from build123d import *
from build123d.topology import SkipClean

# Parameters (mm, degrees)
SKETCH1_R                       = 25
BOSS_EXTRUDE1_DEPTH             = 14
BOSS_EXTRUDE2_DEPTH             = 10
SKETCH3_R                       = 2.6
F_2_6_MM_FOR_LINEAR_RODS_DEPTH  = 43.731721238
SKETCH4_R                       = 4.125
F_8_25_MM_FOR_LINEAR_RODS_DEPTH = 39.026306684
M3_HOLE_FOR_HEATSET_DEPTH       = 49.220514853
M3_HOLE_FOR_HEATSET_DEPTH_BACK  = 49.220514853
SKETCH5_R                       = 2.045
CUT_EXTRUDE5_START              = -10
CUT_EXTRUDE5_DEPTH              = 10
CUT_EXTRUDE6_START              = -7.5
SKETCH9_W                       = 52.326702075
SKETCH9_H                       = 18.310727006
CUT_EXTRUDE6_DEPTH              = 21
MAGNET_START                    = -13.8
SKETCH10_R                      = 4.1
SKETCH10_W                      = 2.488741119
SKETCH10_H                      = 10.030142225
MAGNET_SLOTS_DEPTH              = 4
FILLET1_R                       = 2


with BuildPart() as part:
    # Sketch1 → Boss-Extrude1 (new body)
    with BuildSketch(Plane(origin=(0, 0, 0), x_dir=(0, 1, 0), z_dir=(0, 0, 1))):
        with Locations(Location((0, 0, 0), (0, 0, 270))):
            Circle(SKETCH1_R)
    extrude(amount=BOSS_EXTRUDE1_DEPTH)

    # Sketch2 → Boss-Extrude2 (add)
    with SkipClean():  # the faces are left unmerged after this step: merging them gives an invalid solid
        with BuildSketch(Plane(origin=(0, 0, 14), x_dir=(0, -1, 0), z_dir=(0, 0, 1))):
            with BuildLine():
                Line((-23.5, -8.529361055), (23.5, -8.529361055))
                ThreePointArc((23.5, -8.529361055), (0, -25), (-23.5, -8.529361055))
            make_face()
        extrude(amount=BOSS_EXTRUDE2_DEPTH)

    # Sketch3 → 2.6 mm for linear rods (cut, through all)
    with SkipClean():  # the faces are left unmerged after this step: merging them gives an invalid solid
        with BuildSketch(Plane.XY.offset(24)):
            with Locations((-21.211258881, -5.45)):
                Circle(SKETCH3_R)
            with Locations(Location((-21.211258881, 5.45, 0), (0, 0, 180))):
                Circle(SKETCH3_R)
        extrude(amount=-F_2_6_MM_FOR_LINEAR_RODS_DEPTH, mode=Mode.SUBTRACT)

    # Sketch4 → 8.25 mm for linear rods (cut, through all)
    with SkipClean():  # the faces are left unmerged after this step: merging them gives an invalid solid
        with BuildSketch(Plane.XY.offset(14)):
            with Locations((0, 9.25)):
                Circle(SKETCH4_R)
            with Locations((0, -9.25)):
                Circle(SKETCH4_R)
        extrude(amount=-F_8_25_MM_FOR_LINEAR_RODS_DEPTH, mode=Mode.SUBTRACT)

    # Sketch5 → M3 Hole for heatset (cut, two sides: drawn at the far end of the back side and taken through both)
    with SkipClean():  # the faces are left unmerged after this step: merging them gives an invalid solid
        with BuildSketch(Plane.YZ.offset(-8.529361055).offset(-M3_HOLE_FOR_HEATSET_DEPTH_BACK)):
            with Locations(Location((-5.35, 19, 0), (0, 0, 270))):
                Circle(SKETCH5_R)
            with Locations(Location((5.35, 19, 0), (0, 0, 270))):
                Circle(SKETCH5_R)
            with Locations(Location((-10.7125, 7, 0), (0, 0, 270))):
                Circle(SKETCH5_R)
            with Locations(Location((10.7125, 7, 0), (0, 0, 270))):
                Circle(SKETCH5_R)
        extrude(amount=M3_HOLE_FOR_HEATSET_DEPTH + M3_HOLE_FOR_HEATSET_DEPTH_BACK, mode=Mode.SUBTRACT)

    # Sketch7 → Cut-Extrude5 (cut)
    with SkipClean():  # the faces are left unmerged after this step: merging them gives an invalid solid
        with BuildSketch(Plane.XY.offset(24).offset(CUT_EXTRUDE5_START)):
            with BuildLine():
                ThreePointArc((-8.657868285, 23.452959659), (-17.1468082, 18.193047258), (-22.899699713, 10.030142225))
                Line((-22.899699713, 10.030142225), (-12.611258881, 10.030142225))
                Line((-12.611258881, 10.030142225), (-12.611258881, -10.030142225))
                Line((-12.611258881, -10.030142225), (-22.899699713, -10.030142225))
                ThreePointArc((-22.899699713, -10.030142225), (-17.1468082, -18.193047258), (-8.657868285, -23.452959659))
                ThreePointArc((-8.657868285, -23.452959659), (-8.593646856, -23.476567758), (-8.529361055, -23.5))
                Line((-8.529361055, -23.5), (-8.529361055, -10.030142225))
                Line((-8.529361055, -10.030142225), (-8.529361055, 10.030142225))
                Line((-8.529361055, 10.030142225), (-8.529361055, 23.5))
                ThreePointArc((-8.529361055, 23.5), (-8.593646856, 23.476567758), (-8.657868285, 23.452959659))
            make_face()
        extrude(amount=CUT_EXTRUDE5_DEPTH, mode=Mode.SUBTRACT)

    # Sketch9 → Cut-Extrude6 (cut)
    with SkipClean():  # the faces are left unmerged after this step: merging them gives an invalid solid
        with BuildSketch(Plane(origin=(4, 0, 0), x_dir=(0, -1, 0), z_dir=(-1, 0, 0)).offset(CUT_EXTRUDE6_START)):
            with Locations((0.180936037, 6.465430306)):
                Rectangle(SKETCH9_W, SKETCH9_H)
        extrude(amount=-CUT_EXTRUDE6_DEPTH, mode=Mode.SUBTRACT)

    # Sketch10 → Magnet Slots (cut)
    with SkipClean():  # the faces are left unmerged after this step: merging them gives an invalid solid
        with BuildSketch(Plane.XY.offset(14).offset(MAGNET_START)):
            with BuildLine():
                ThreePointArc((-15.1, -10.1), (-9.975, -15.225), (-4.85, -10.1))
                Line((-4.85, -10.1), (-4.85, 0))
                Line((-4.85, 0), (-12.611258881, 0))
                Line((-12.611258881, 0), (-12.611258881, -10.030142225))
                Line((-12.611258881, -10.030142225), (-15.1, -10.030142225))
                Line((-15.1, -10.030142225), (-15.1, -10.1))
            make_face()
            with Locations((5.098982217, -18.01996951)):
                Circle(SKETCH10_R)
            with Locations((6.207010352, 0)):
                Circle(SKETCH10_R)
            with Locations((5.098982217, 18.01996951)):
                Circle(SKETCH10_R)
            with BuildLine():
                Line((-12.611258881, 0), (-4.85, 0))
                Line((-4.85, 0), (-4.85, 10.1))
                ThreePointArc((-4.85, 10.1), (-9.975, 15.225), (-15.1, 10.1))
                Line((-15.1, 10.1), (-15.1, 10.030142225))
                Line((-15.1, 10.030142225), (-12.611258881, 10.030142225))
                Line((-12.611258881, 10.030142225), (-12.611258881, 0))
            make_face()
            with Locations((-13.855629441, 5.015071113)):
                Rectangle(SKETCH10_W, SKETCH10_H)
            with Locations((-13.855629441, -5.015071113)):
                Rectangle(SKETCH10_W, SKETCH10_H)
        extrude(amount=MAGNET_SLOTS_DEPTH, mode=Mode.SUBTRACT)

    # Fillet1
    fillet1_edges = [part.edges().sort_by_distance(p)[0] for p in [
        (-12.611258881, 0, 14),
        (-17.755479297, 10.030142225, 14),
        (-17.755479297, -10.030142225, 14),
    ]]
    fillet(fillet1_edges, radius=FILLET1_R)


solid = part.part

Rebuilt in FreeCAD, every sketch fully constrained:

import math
import FreeCAD as App
import Part
import Sketcher
from FreeCAD import Vector
Q = App.Units.Quantity


def edges_at(feature, points):
    """Names of the edges that pass closest to the given points."""
    edges = feature.Shape.Edges
    near = lambda p: min(range(len(edges)), key=lambda i: edges[i].distToShape(Part.Vertex(*p))[0])
    return sorted({f"Edge{near(p) + 1}" for p in points})


def add_polygon(sketch, points):
    """Adds a closed chain of lines whose ends are joined by coincident constraints."""
    first, n = sketch.GeometryCount, len(points)
    for a, b in zip(points, points[1:] + points[:1]):
        sketch.addGeometry(Part.LineSegment(App.Vector(*a, 0), App.Vector(*b, 0)), False)
    for i in range(n):
        sketch.addConstraint(Sketcher.Constraint("Coincident", first + i, 2, first + (i + 1) % n, 1))

doc = App.newDocument("Part")
body = doc.addObject("PartDesign::Body", "Body")

sketch1 = doc.addObject("Sketcher::SketchObject", "Sketch")
body.addObject(sketch1)
sketch1.AttachmentSupport = (doc.XY_Plane, [""])
sketch1.MapMode = "FlatFace"
sketch1.addGeometry(Part.Circle(Vector(0, 0, 0), Vector(0, 0, 1), 25), False)
sketch1.addConstraint(Sketcher.Constraint("Coincident", 0, 3, -1, 1))
sketch1.addConstraint(Sketcher.Constraint("Diameter", 0, Q("50 mm")))
pad1 = doc.addObject("PartDesign::Pad", "Pad")
body.addObject(pad1)
pad1.Profile = sketch1
pad1.Length = 14

sketch2 = doc.addObject("Sketcher::SketchObject", "Sketch001")
body.addObject(sketch2)
sketch2.AttachmentSupport = (doc.XY_Plane, [""])
sketch2.MapMode = "FlatFace"
sketch2.AttachmentOffset = App.Placement(Vector(0, 0, 14), App.Rotation())
sketch2.addGeometry(Part.LineSegment(Vector(-9, -24, 0), Vector(-9, 24, 0)), False)
sketch2.addGeometry(Part.ArcOfCircle(Part.Circle(Vector(0, 0, 0), Vector(0, 0, 1), 25), math.radians(110), math.radians(250)), False)
sketch2.addConstraint(Sketcher.Constraint("Coincident", 0, 1, 1, 2))
sketch2.addConstraint(Sketcher.Constraint("Coincident", 1, 1, 0, 2))
sketch2.addConstraint(Sketcher.Constraint("Vertical", 0))
sketch2.addConstraint(Sketcher.Constraint("Coincident", 1, 3, -1, 1))
sketch2.addConstraint(Sketcher.Constraint("Radius", 1, Q("25 mm")))
sketch2.addConstraint(Sketcher.Constraint("DistanceY", 0, 1, 0, 2, Q("47 mm")))
pad2 = doc.addObject("PartDesign::Pad", "Pad001")
body.addObject(pad2)
pad2.Profile = sketch2
pad2.Length = 10

sketch3 = doc.addObject("Sketcher::SketchObject", "Sketch002")
body.addObject(sketch3)
sketch3.AttachmentSupport = (doc.XY_Plane, [""])
sketch3.MapMode = "FlatFace"
sketch3.AttachmentOffset = App.Placement(Vector(0, 0, 24), App.Rotation())
sketch3.addGeometry(Part.Circle(Vector(-21.2, -5.5, 0), Vector(0, 0, 1), 2.6), False)
sketch3.addGeometry(Part.Circle(Vector(-21.2, 5.5, 0), Vector(0, 0, 1), 2.6), False)
sketch3.addConstraint(Sketcher.Constraint("Equal", 0, 1))
sketch3.addConstraint(Sketcher.Constraint("Symmetric", 0, 3, 1, 3, -1))
sketch3.addConstraint(Sketcher.Constraint("Diameter", 0, Q("5.2 mm")))
sketch3.addConstraint(Sketcher.Constraint("DistanceY", 0, 3, 1, 3, Q("10.9 mm")))
sketch3.addConstraint(Sketcher.Constraint("DistanceX", 0, 3, -1, 1, Q("21.211259 mm")))
pocket1 = doc.addObject("PartDesign::Pocket", "Pocket")
body.addObject(pocket1)
pocket1.Profile = sketch3
pocket1.Type = "ThroughAll"

sketch4 = doc.addObject("Sketcher::SketchObject", "Sketch003")
body.addObject(sketch4)
sketch4.AttachmentSupport = (doc.XY_Plane, [""])
sketch4.MapMode = "FlatFace"
sketch4.AttachmentOffset = App.Placement(Vector(0, 0, 14), App.Rotation())
sketch4.addGeometry(Part.Circle(Vector(0, 9.2, 0), Vector(0, 0, 1), 4.1), False)
sketch4.addGeometry(Part.Circle(Vector(0, -9.2, 0), Vector(0, 0, 1), 4.1), False)
sketch4.addConstraint(Sketcher.Constraint("Equal", 0, 1))
sketch4.addConstraint(Sketcher.Constraint("Symmetric", 0, 3, 1, 3, -1, 1))
sketch4.addConstraint(Sketcher.Constraint("PointOnObject", 0, 3, -2))
sketch4.addConstraint(Sketcher.Constraint("Diameter", 0, Q("8.25 mm")))
sketch4.addConstraint(Sketcher.Constraint("DistanceY", 1, 3, 0, 3, Q("18.5 mm")))
pocket2 = doc.addObject("PartDesign::Pocket", "Pocket001")
body.addObject(pocket2)
pocket2.Profile = sketch4
pocket2.Type = "ThroughAll"

sketch5 = doc.addObject("Sketcher::SketchObject", "Sketch004")
body.addObject(sketch5)
sketch5.AttachmentSupport = (doc.YZ_Plane, [""])
sketch5.MapMode = "FlatFace"
sketch5.AttachmentOffset = App.Placement(Vector(0, 0, -8.529361), App.Rotation())
sketch5.addGeometry(Part.Circle(Vector(-5.3, 19, 0), Vector(0, 0, 1), 2), False)
sketch5.addGeometry(Part.Circle(Vector(5.3, 19, 0), Vector(0, 0, 1), 2), False)
sketch5.addGeometry(Part.Circle(Vector(-10.7, 7, 0), Vector(0, 0, 1), 2), False)
sketch5.addGeometry(Part.Circle(Vector(10.7, 7, 0), Vector(0, 0, 1), 2), False)
sketch5.addConstraint(Sketcher.Constraint("Equal", 0, 1))
sketch5.addConstraint(Sketcher.Constraint("Equal", 1, 2))
sketch5.addConstraint(Sketcher.Constraint("Equal", 2, 3))
sketch5.addConstraint(Sketcher.Constraint("Symmetric", 0, 3, 1, 3, -2))
sketch5.addConstraint(Sketcher.Constraint("Symmetric", 2, 3, 3, 3, -2))
sketch5.addConstraint(Sketcher.Constraint("Diameter", 0, Q("4.09 mm")))
sketch5.addConstraint(Sketcher.Constraint("DistanceY", -1, 1, 0, 3, Q("19 mm")))
sketch5.addConstraint(Sketcher.Constraint("DistanceY", -1, 1, 2, 3, Q("7 mm")))
sketch5.addConstraint(Sketcher.Constraint("DistanceX", 0, 3, 1, 3, Q("10.7 mm")))
sketch5.addConstraint(Sketcher.Constraint("DistanceX", 2, 3, 3, 3, Q("21.425 mm")))
pocket3 = doc.addObject("PartDesign::Pocket", "Pocket002")
body.addObject(pocket3)
pocket3.Profile = sketch5
pocket3.Type = "ThroughAll"
pocket3.Midplane = True

sketch6 = doc.addObject("Sketcher::SketchObject", "Sketch005")
body.addObject(sketch6)
sketch6.AttachmentSupport = (doc.XY_Plane, [""])
sketch6.MapMode = "FlatFace"
sketch6.AttachmentOffset = App.Placement(Vector(0, 0, 14), App.Rotation())
sketch6.addGeometry(Part.ArcOfCircle(Part.Circle(Vector(0, 0, 0), Vector(0, 0, 1), 25), math.radians(110), math.radians(156)), False)
sketch6.addGeometry(Part.LineSegment(Vector(-22.9, 10.03, 0), Vector(-12.61, 10.03, 0)), False)
sketch6.addGeometry(Part.LineSegment(Vector(-12.61, 10.03, 0), Vector(-12.61, -10.03, 0)), False)
sketch6.addGeometry(Part.LineSegment(Vector(-12.61, -10.03, 0), Vector(-22.9, -10.03, 0)), False)
sketch6.addGeometry(Part.ArcOfCircle(Part.Circle(Vector(0, 0, 0), Vector(0, 0, 1), 25), math.radians(-156), math.radians(-110)), False)
sketch6.addGeometry(Part.ArcOfCircle(Part.Circle(Vector(0, 0, 0), Vector(0, 0, 1), 25), math.radians(-110.26), math.radians(-109.95)), False)
sketch6.addGeometry(Part.LineSegment(Vector(-8.53, -23.5, 0), Vector(-8.53, 23.5, 0)), False)
sketch6.addGeometry(Part.ArcOfCircle(Part.Circle(Vector(0, 0, 0), Vector(0, 0, 1), 25), math.radians(109.95), math.radians(110.26)), False)
sketch6.addConstraint(Sketcher.Constraint("Coincident", 0, 2, 1, 1))
sketch6.addConstraint(Sketcher.Constraint("Coincident", 1, 2, 2, 1))
sketch6.addConstraint(Sketcher.Constraint("Coincident", 2, 2, 3, 1))
sketch6.addConstraint(Sketcher.Constraint("Coincident", 3, 2, 4, 1))
sketch6.addConstraint(Sketcher.Constraint("Tangent", 4, 2, 5, 1))
sketch6.addConstraint(Sketcher.Constraint("Coincident", 5, 2, 6, 1))
sketch6.addConstraint(Sketcher.Constraint("Coincident", 6, 2, 7, 1))
sketch6.addConstraint(Sketcher.Constraint("Tangent", 7, 2, 0, 1))
sketch6.addConstraint(Sketcher.Constraint("Horizontal", 1))
sketch6.addConstraint(Sketcher.Constraint("Vertical", 2))
sketch6.addConstraint(Sketcher.Constraint("Horizontal", 3))
sketch6.addConstraint(Sketcher.Constraint("Vertical", 6))
sketch6.addConstraint(Sketcher.Constraint("Coincident", 0, 3, -1, 1))
sketch6.addConstraint(Sketcher.Constraint("Coincident", 4, 3, -1, 1))
sketch6.addConstraint(Sketcher.Constraint("Equal", 0, 4))
sketch6.addConstraint(Sketcher.Constraint("Equal", 5, 7))
sketch6.addConstraint(Sketcher.Constraint("Vertical", 0, 2, 3, 2))
sketch6.addConstraint(Sketcher.Constraint("Vertical", 4, 2, 7, 2))
sketch6.addConstraint(Sketcher.Constraint("Radius", 0, Q("25 mm")))
sketch6.addConstraint(Sketcher.Constraint("DistanceY", 6, 1, 6, 2, Q("47 mm")))
sketch6.addConstraint(Sketcher.Constraint("Radius", 5, Q("25.000135 mm")))
sketch6.addConstraint(Sketcher.Constraint("DistanceX", 1, 1, 1, 2, Q("10.288441 mm")))
sketch6.addConstraint(Sketcher.Constraint("DistanceX", 0, 2, -1, 1, Q("22.8997 mm")))
sketch6.addConstraint(Sketcher.Constraint("DistanceX", 4, 2, -1, 1, Q("8.657868 mm")))
pocket4 = doc.addObject("PartDesign::Pocket", "Pocket003")
body.addObject(pocket4)
pocket4.Profile = sketch6
pocket4.Length = 10
pocket4.Reversed = True

sketch7 = doc.addObject("Sketcher::SketchObject", "Sketch006")
body.addObject(sketch7)
sketch7.AttachmentSupport = (doc.YZ_Plane, [""])
sketch7.MapMode = "FlatFace"
sketch7.AttachmentOffset = App.Placement(Vector(0, 0, 11.5), App.Rotation())
add_polygon(sketch7, [(26, 16), (26, -3), (-26, -3), (-26, 16)])
sketch7.addConstraint(Sketcher.Constraint("Vertical", 0))
sketch7.addConstraint(Sketcher.Constraint("Horizontal", 1))
sketch7.addConstraint(Sketcher.Constraint("Vertical", 2))
sketch7.addConstraint(Sketcher.Constraint("Horizontal", 3))
sketch7.addConstraint(Sketcher.Constraint("DistanceX", 1, 2, 1, 1, Q("52.326702 mm")))
sketch7.addConstraint(Sketcher.Constraint("DistanceY", 0, 2, 0, 1, Q("18.310727 mm")))
sketch7.addConstraint(Sketcher.Constraint("DistanceX", -1, 1, 0, 2, Q("25.982415 mm")))
sketch7.addConstraint(Sketcher.Constraint("DistanceY", 0, 2, -1, 1, Q("2.689933 mm")))
pocket5 = doc.addObject("PartDesign::Pocket", "Pocket004")
body.addObject(pocket5)
pocket5.Profile = sketch7
pocket5.Length = 21
pocket5.Reversed = True

sketch8 = doc.addObject("Sketcher::SketchObject", "Sketch007")
body.addObject(sketch8)
sketch8.AttachmentSupport = (doc.XY_Plane, [""])
sketch8.MapMode = "FlatFace"
sketch8.AttachmentOffset = App.Placement(Vector(0, 0, 0.2), App.Rotation())
sketch8.addGeometry(Part.ArcOfCircle(Part.Circle(Vector(-9.97, -10.1, 0), Vector(0, 0, 1), 5.12), math.radians(180), math.radians(360)), False)
sketch8.addGeometry(Part.LineSegment(Vector(-4.85, -10.1, 0), Vector(-4.85, 0, 0)), False)
sketch8.addGeometry(Part.LineSegment(Vector(-4.85, 0, 0), Vector(-12.61, 0, 0)), False)
sketch8.addGeometry(Part.LineSegment(Vector(-12.61, 0, 0), Vector(-12.61, -10.03, 0)), False)
sketch8.addGeometry(Part.LineSegment(Vector(-12.61, -10.03, 0), Vector(-15.1, -10.03, 0)), False)
sketch8.addGeometry(Part.LineSegment(Vector(-15.1, -10.03, 0), Vector(-15.1, -10.1, 0)), False)
sketch8.addGeometry(Part.Circle(Vector(5.1, -18.02, 0), Vector(0, 0, 1), 4.1), False)
sketch8.addGeometry(Part.Circle(Vector(6.21, 0, 0), Vector(0, 0, 1), 4.1), False)
sketch8.addGeometry(Part.Circle(Vector(5.1, 18.02, 0), Vector(0, 0, 1), 4.1), False)
sketch8.addGeometry(Part.LineSegment(Vector(-12.61, 0, 0), Vector(-4.85, 0, 0)), False)
sketch8.addGeometry(Part.LineSegment(Vector(-4.85, 0, 0), Vector(-4.85, 10.1, 0)), False)
sketch8.addGeometry(Part.ArcOfCircle(Part.Circle(Vector(-9.97, 10.1, 0), Vector(0, 0, 1), 5.12), math.radians(0), math.radians(180)), False)
sketch8.addGeometry(Part.LineSegment(Vector(-15.1, 10.1, 0), Vector(-15.1, 10.03, 0)), False)
sketch8.addGeometry(Part.LineSegment(Vector(-15.1, 10.03, 0), Vector(-12.61, 10.03, 0)), False)
sketch8.addGeometry(Part.LineSegment(Vector(-12.61, 10.03, 0), Vector(-12.61, 0, 0)), False)
add_polygon(sketch8, [(-15.1, 10.03), (-15.1, 0), (-12.61, 0), (-12.61, 10.03)])
add_polygon(sketch8, [(-15.1, 0), (-15.1, -10.03), (-12.61, -10.03), (-12.61, 0)])
sketch8.addConstraint(Sketcher.Constraint("Tangent", 0, 2, 1, 1))
sketch8.addConstraint(Sketcher.Constraint("Coincident", 1, 2, 2, 1))
sketch8.addConstraint(Sketcher.Constraint("Coincident", 2, 2, 3, 1))
sketch8.addConstraint(Sketcher.Constraint("Coincident", 3, 2, 4, 1))
sketch8.addConstraint(Sketcher.Constraint("Coincident", 4, 2, 5, 1))
sketch8.addConstraint(Sketcher.Constraint("Tangent", 5, 2, 0, 1))
sketch8.addConstraint(Sketcher.Constraint("Coincident", 9, 2, 10, 1))
sketch8.addConstraint(Sketcher.Constraint("Tangent", 10, 2, 11, 1))
sketch8.addConstraint(Sketcher.Constraint("Tangent", 11, 2, 12, 1))
sketch8.addConstraint(Sketcher.Constraint("Coincident", 12, 2, 13, 1))
sketch8.addConstraint(Sketcher.Constraint("Coincident", 13, 2, 14, 1))
sketch8.addConstraint(Sketcher.Constraint("Coincident", 14, 2, 9, 1))
sketch8.addConstraint(Sketcher.Constraint("Vertical", 1))
sketch8.addConstraint(Sketcher.Constraint("Horizontal", 2))
sketch8.addConstraint(Sketcher.Constraint("Vertical", 3))
sketch8.addConstraint(Sketcher.Constraint("Horizontal", 4))
sketch8.addConstraint(Sketcher.Constraint("Vertical", 5))
sketch8.addConstraint(Sketcher.Constraint("Horizontal", 9))
sketch8.addConstraint(Sketcher.Constraint("Vertical", 10))
sketch8.addConstraint(Sketcher.Constraint("Vertical", 12))
sketch8.addConstraint(Sketcher.Constraint("Horizontal", 13))
sketch8.addConstraint(Sketcher.Constraint("Vertical", 14))
sketch8.addConstraint(Sketcher.Constraint("Vertical", 15))
sketch8.addConstraint(Sketcher.Constraint("Horizontal", 16))
sketch8.addConstraint(Sketcher.Constraint("Vertical", 17))
sketch8.addConstraint(Sketcher.Constraint("Horizontal", 18))
sketch8.addConstraint(Sketcher.Constraint("Vertical", 19))
sketch8.addConstraint(Sketcher.Constraint("Horizontal", 20))
sketch8.addConstraint(Sketcher.Constraint("Vertical", 21))
sketch8.addConstraint(Sketcher.Constraint("Horizontal", 22))
sketch8.addConstraint(Sketcher.Constraint("Coincident", 9, 2, 1, 2))
sketch8.addConstraint(Sketcher.Constraint("Coincident", 16, 2, 2, 2))
sketch8.addConstraint(Sketcher.Constraint("Coincident", 17, 2, 13, 2))
sketch8.addConstraint(Sketcher.Constraint("Coincident", 19, 2, 4, 2))
sketch8.addConstraint(Sketcher.Constraint("Coincident", 21, 2, 2, 2))
sketch8.addConstraint(Sketcher.Constraint("Equal", 6, 7))
sketch8.addConstraint(Sketcher.Constraint("Equal", 7, 8))
sketch8.addConstraint(Sketcher.Constraint("Equal", 0, 11))
sketch8.addConstraint(Sketcher.Constraint("Symmetric", 6, 3, 8, 3, -1))
sketch8.addConstraint(Sketcher.Constraint("Symmetric", 4, 2, 18, 2, -1))
sketch8.addConstraint(Sketcher.Constraint("PointOnObject", 7, 3, -1))
sketch8.addConstraint(Sketcher.Constraint("PointOnObject", 1, 2, -1))
sketch8.addConstraint(Sketcher.Constraint("Equal", 1, 10))
sketch8.addConstraint(Sketcher.Constraint("Diameter", 6, Q("8.2 mm")))
sketch8.addConstraint(Sketcher.Constraint("DistanceY", 1, 1, 1, 2, Q("10.1 mm")))
sketch8.addConstraint(Sketcher.Constraint("Radius", 0, Q("5.125 mm")))
sketch8.addConstraint(Sketcher.Constraint("DistanceX", 4, 2, -1, 1, Q("15.1 mm")))
sketch8.addConstraint(Sketcher.Constraint("DistanceX", 2, 2, 2, 1, Q("7.761259 mm")))
sketch8.addConstraint(Sketcher.Constraint("DistanceY", 3, 2, 3, 1, Q("10.030142 mm")))
sketch8.addConstraint(Sketcher.Constraint("DistanceY", 6, 3, -1, 1, Q("18.01997 mm")))
sketch8.addConstraint(Sketcher.Constraint("DistanceX", -1, 1, 7, 3, Q("6.20701 mm")))
sketch8.addConstraint(Sketcher.Constraint("DistanceX", 6, 3, 7, 3, Q("1.108028 mm")))
pocket6 = doc.addObject("PartDesign::Pocket", "Pocket005")
body.addObject(pocket6)
pocket6.Profile = sketch8
pocket6.Length = 4
pocket6.Reversed = True
doc.recompute()

fillet = doc.addObject("PartDesign::Fillet", "Fillet")
body.addObject(fillet)
fillet.Base = (pocket6, edges_at(pocket6, [(-12.611, 0, 14), (-17.755, 10.03, 14), (-17.755, -10.03, 14)]))
fillet.Radius = 2

doc.recompute()
